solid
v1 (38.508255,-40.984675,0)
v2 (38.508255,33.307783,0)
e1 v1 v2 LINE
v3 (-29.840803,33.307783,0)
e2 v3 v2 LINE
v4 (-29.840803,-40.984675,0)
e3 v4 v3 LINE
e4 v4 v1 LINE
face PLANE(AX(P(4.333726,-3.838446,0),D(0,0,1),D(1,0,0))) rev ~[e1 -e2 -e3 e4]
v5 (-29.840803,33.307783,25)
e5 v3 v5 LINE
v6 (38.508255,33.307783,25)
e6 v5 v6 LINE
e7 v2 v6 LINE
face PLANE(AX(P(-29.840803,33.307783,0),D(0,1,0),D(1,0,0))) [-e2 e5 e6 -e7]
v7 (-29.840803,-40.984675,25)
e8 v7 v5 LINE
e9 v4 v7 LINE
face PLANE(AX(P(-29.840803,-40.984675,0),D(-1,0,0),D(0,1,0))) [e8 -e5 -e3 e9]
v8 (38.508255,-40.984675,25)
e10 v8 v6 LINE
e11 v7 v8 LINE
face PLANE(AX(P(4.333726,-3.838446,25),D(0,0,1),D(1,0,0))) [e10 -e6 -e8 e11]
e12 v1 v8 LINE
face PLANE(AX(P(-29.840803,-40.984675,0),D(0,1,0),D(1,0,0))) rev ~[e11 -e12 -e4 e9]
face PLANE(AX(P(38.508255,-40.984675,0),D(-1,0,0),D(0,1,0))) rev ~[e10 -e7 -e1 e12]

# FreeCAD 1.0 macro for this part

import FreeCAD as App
import Part
import Sketcher
from FreeCAD import Vector

doc = App.newDocument("Part")
params = doc.addObject("Spreadsheet::Sheet", "Params")
for row, (alias, value) in enumerate([
    ("pad1_length", "25 mm"),
], start=1):
    params.set(f"A{row}", alias)
    params.set(f"B{row}", "=" + value)
    params.setAlias(f"B{row}", alias)

body = doc.addObject("PartDesign::Body", "Body")

# Sketch on XY plane
sketch1 = body.newObject("Sketcher::SketchObject", "Sketch")
sketch1.AttachmentSupport = (doc.getObject("XY_Plane"), [""])
sketch1.MapMode = "FlatFace"
sketch1.addGeometry([
    Part.LineSegment(Vector(-30, 33, 0), Vector(-30, -41, 0)),
    Part.LineSegment(Vector(-30, -41, 0), Vector(39, -41, 0)),
    Part.LineSegment(Vector(39, -41, 0), Vector(39, 33, 0)),
    Part.LineSegment(Vector(39, 33, 0), Vector(-30, 33, 0)),
], False)
sketch1.addConstraint([
    Sketcher.Constraint("Coincident", 0, 2, 1, 1),
    Sketcher.Constraint("Coincident", 1, 2, 2, 1),
    Sketcher.Constraint("Coincident", 2, 2, 3, 1),
    Sketcher.Constraint("Coincident", 3, 2, 0, 1),
    Sketcher.Constraint("Vertical", 0),
    Sketcher.Constraint("Horizontal", 1),
    Sketcher.Constraint("Vertical", 2),
    Sketcher.Constraint("Horizontal", 3),
    Sketcher.Constraint("DistanceX", 1, 1, 1, 2, 68.349058),
    Sketcher.Constraint("DistanceY", 0, 2, 0, 1, 74.292458),
    Sketcher.Constraint("DistanceX", 0, 2, -1, 1, 29.840803),
    Sketcher.Constraint("DistanceY", 0, 2, -1, 1, 40.984675),
])
pad1 = body.newObject("PartDesign::Pad", "Pad")
pad1.Profile = sketch1
pad1.setExpression("Length", "Params.pad1_length")

doc.recompute()
